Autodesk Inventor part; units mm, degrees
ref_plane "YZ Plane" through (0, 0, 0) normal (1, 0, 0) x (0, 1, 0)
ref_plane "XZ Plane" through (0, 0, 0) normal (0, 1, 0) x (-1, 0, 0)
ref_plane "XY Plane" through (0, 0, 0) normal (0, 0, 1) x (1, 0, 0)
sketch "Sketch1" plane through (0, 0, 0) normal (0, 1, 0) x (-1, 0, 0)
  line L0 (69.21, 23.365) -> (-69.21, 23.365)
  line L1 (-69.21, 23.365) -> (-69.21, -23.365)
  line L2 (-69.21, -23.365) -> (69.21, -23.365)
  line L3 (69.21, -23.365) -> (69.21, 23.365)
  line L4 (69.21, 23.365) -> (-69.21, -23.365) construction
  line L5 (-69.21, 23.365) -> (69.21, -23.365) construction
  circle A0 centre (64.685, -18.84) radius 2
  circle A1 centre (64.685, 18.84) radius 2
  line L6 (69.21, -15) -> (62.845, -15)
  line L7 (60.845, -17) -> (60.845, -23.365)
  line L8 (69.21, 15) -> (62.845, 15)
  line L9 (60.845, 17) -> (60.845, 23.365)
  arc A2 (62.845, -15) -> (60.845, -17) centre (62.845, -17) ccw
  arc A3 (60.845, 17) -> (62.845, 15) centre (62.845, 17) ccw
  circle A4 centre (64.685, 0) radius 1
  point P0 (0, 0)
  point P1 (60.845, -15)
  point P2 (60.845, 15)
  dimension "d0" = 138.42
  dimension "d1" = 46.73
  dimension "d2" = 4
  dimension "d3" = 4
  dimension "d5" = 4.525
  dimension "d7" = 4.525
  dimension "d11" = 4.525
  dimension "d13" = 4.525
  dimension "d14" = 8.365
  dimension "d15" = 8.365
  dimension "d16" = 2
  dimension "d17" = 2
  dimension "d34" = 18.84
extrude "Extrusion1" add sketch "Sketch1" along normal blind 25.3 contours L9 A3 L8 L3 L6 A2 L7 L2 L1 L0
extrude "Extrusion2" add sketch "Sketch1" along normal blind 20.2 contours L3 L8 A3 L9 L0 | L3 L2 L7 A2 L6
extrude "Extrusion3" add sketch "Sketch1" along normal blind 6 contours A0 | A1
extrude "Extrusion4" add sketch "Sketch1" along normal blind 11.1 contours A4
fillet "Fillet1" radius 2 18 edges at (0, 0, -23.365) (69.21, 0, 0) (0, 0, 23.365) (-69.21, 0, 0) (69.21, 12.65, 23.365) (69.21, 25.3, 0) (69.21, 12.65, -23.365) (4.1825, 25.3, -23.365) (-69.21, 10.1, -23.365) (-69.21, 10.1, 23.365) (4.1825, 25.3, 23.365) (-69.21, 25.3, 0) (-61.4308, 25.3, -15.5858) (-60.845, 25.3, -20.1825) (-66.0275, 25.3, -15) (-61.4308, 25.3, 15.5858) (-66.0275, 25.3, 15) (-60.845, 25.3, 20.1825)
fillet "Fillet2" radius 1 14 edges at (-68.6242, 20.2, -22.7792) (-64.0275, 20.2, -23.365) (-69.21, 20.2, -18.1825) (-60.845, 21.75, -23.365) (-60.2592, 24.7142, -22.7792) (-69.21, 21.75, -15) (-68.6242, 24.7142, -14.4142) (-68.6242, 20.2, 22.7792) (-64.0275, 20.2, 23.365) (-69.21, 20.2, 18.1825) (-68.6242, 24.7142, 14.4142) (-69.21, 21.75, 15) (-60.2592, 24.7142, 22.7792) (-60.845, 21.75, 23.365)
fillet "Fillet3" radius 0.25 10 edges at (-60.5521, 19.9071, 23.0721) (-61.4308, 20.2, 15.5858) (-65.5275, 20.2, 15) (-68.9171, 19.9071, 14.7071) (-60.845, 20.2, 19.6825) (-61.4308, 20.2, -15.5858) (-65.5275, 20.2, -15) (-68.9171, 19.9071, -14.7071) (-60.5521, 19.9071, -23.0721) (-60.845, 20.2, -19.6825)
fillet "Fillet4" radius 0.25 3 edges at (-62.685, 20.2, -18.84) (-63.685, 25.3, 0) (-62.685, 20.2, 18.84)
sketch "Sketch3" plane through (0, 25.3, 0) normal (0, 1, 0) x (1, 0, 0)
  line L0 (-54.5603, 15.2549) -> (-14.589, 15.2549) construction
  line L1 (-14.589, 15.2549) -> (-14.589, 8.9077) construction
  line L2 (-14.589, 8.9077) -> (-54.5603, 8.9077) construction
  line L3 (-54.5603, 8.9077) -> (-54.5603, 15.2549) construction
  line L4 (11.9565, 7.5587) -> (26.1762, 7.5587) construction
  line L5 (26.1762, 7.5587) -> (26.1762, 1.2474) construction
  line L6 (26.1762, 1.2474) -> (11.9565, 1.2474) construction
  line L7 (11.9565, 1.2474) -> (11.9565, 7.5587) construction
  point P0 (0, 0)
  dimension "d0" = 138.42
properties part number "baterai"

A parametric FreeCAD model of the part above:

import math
import FreeCAD as App
import Part
import Sketcher

V = App.Vector
Q = App.Units.Quantity


def edges_at(feature, points):
    """Names of the edges that pass closest to the given points."""
    edges = feature.Shape.Edges
    near = lambda p: min(range(len(edges)), key=lambda i: edges[i].distToShape(Part.Vertex(*p))[0])
    return sorted({f"Edge{near(p) + 1}" for p in points})

doc = App.newDocument("Part")
params = doc.addObject("Spreadsheet::Sheet", "Params")
for row, (alias, value) in enumerate([
    ("sketch1_diameter", "2 mm"),
    ("sketch1_radius", "2 mm"),
    ("sketch1_height", "46.73 mm"),
    ("sketch1_height2", "30 mm"),
    ("pad1_length", "25.3 mm"),
    ("sketch2_diameter", "4 mm"),
    ("pad2_length", "20.2 mm"),
    ("sketch3_diameter", "4 mm"),
    ("pad3_length", "6 mm"),
    ("sketch4_diameter", "2 mm"),
    ("pad4_length", "11.1 mm"),
    ("fillet_radius", "2 mm"),
    ("fillet2_radius", "1 mm"),
    ("fillet3_radius", "0.25 mm"),
    ("fillet4_radius", "0.25 mm"),
], start=1):
    params.set(f"A{row}", alias)
    params.set(f"B{row}", "=" + value)
    params.setAlias(f"B{row}", alias)

body = doc.addObject("PartDesign::Body", "Body")

# Sketch on XZ plane
sketch1 = body.newObject("Sketcher::SketchObject", "Sketch")
sketch1.AttachmentSupport = (doc.getObject("XZ_Plane"), [""])
sketch1.MapMode = "FlatFace"
sketch1.addGeometry([
    Part.LineSegment(V(-60.8, 17, 0), V(-60.8, 23.4, 0)),  # 0
    Part.LineSegment(V(-60.8, 23.4, 0), V(69.2, 23.4, 0)),  # 1
    Part.LineSegment(V(69.2, 23.4, 0), V(69.2, -23.4, 0)),  # 2
    Part.LineSegment(V(69.2, -23.4, 0), V(-60.8, -23.4, 0)),  # 3
    Part.LineSegment(V(-60.8, -23.4, 0), V(-60.8, -17, 0)),  # 4
    Part.ArcOfCircle(Part.Circle(V(-62.8, -17, 0), V(0, 0, 1), 2), math.radians(0), math.radians(90)),  # 5
    Part.LineSegment(V(-62.8, -15, 0), V(-69.2, -15, 0)),  # 6
    Part.LineSegment(V(-69.2, -15, 0), V(-69.2, 15, 0)),  # 7
    Part.LineSegment(V(-69.2, 15, 0), V(-62.8, 15, 0)),  # 8
    Part.ArcOfCircle(Part.Circle(V(-62.8, 17, 0), V(0, 0, 1), 2), math.radians(-90), math.radians(0)),  # 9
    Part.Circle(V(-64.7, 0, 0), V(0, 0, 1), 1),  # 10
], False)
sketch1.addConstraint([
    Sketcher.Constraint("Coincident", 0, 2, 1, 1),
    Sketcher.Constraint("Coincident", 1, 2, 2, 1),
    Sketcher.Constraint("Coincident", 2, 2, 3, 1),
    Sketcher.Constraint("Coincident", 3, 2, 4, 1),
    Sketcher.Constraint("Tangent", 4, 2, 5, 1),
    Sketcher.Constraint("Tangent", 5, 2, 6, 1),
    Sketcher.Constraint("Coincident", 6, 2, 7, 1),
    Sketcher.Constraint("Coincident", 7, 2, 8, 1),
    Sketcher.Constraint("Tangent", 8, 2, 9, 1),
    Sketcher.Constraint("Tangent", 9, 2, 0, 1),
    Sketcher.Constraint("Vertical", 0),
    Sketcher.Constraint("Horizontal", 1),
    Sketcher.Constraint("Vertical", 2),
    Sketcher.Constraint("Horizontal", 3),
    Sketcher.Constraint("Vertical", 4),
    Sketcher.Constraint("Horizontal", 6),
    Sketcher.Constraint("Vertical", 7),
    Sketcher.Constraint("Horizontal", 8),
    Sketcher.Constraint("Equal", 5, 9),
    Sketcher.Constraint("Symmetric", 5, 3, 9, 3, -1),
    Sketcher.Constraint("PointOnObject", 10, 3, -1),
    Sketcher.Constraint("Equal", 8, 0),
    Sketcher.Constraint("Equal", 0, 4),
    Sketcher.Constraint("Diameter", 10, Q("2 mm")),
    Sketcher.Constraint("Radius", 5, Q("2 mm")),
    Sketcher.Constraint("DistanceY", 2, 2, 2, 1, Q("46.73 mm")),
    Sketcher.Constraint("DistanceY", 7, 1, 7, 2, Q("30 mm")),
    Sketcher.Constraint("DistanceX", 6, 2, 10, 3, Q("4.525 mm")),
    Sketcher.Constraint("DistanceX", 1, 1, 1, 2, Q("130.055 mm")),
    Sketcher.Constraint("DistanceX", -1, 1, 1, 2, Q("69.21 mm")),
])
sketch1.setExpression("Constraints[23]", "Params.sketch1_diameter")
sketch1.setExpression("Constraints[24]", "Params.sketch1_radius")
sketch1.setExpression("Constraints[25]", "Params.sketch1_height")
sketch1.setExpression("Constraints[26]", "Params.sketch1_height2")
pad1 = body.newObject("PartDesign::Pad", "Pad")
pad1.Profile = sketch1
pad1.setExpression("Length", "Params.pad1_length")
pad1.Reversed = True

# Sketch on XZ plane
sketch2 = body.newObject("Sketcher::SketchObject", "Sketch001")
sketch2.AttachmentSupport = (doc.getObject("XZ_Plane"), [""])
sketch2.MapMode = "FlatFace"
sketch2.addGeometry([
    Part.LineSegment(V(-69.2, 15, 0), V(-69.2, 23.4, 0)),  # 0
    Part.LineSegment(V(-69.2, 23.4, 0), V(-60.8, 23.4, 0)),  # 1
    Part.LineSegment(V(-60.8, 23.4, 0), V(-60.8, 17, 0)),  # 2
    Part.ArcOfCircle(Part.Circle(V(-62.8, 17, 0), V(0, 0, 1), 2), math.radians(-90), math.radians(0)),  # 3
    Part.LineSegment(V(-62.8, 15, 0), V(-69.2, 15, 0)),  # 4
    Part.Circle(V(-64.7, 18.8, 0), V(0, 0, 1), 2),  # 5
    Part.LineSegment(V(-69.2, -23.4, 0), V(-69.2, -15, 0)),  # 6
    Part.LineSegment(V(-69.2, -15, 0), V(-62.8, -15, 0)),  # 7
    Part.ArcOfCircle(Part.Circle(V(-62.8, -17, 0), V(0, 0, 1), 2), math.radians(0), math.radians(90)),  # 8
    Part.LineSegment(V(-60.8, -17, 0), V(-60.8, -23.4, 0)),  # 9
    Part.LineSegment(V(-60.8, -23.4, 0), V(-69.2, -23.4, 0)),  # 10
    Part.Circle(V(-64.7, -18.8, 0), V(0, 0, 1), 2),  # 11
], False)
sketch2.addConstraint([
    Sketcher.Constraint("Coincident", 0, 2, 1, 1),
    Sketcher.Constraint("Coincident", 1, 2, 2, 1),
    Sketcher.Constraint("Tangent", 2, 2, 3, 2),
    Sketcher.Constraint("Tangent", 3, 1, 4, 1),
    Sketcher.Constraint("Coincident", 4, 2, 0, 1),
    Sketcher.Constraint("Coincident", 6, 2, 7, 1),
    Sketcher.Constraint("Tangent", 7, 2, 8, 2),
    Sketcher.Constraint("Tangent", 8, 1, 9, 1),
    Sketcher.Constraint("Coincident", 9, 2, 10, 1),
    Sketcher.Constraint("Coincident", 10, 2, 6, 1),
    Sketcher.Constraint("Vertical", 0),
    Sketcher.Constraint("Horizontal", 1),
    Sketcher.Constraint("Vertical", 2),
    Sketcher.Constraint("Horizontal", 4),
    Sketcher.Constraint("Vertical", 6),
    Sketcher.Constraint("Horizontal", 7),
    Sketcher.Constraint("Vertical", 9),
    Sketcher.Constraint("Horizontal", 10),
    Sketcher.Constraint("Equal", 3, 5),
    Sketcher.Constraint("Equal", 5, 8),
    Sketcher.Constraint("Equal", 8, 11),
    Sketcher.Constraint("Symmetric", 3, 3, 8, 3, -1),
    Sketcher.Constraint("Symmetric", 5, 3, 11, 3, -1),
    Sketcher.Constraint("Symmetric", 0, 2, 10, 2, -1),
    Sketcher.Constraint("Equal", 10, 0),
    Sketcher.Constraint("Diameter", 5, Q("4 mm")),
    Sketcher.Constraint("DistanceX", 1, 1, 1, 2, Q("8.365 mm")),
    Sketcher.Constraint("DistanceY", -1, 1, 5, 3, Q("18.84 mm")),
    Sketcher.Constraint("DistanceY", -1, 1, 3, 3, Q("17 mm")),
    Sketcher.Constraint("DistanceX", 0, 2, 5, 3, Q("4.525 mm")),
    Sketcher.Constraint("DistanceX", 0, 2, -1, 1, Q("69.21 mm")),
])
sketch2.setExpression("Constraints[25]", "Params.sketch2_diameter")
pad2 = body.newObject("PartDesign::Pad", "Pad001")
pad2.Profile = sketch2
pad2.setExpression("Length", "Params.pad2_length")
pad2.Reversed = True

# Sketch on XZ plane
sketch3 = body.newObject("Sketcher::SketchObject", "Sketch002")
sketch3.AttachmentSupport = (doc.getObject("XZ_Plane"), [""])
sketch3.MapMode = "FlatFace"
sketch3.addGeometry([
    Part.Circle(V(-64.7, -18.8, 0), V(0, 0, 1), 2),
    Part.Circle(V(-64.7, 18.8, 0), V(0, 0, 1), 2),
], False)
sketch3.addConstraint([
    Sketcher.Constraint("Equal", 0, 1),
    Sketcher.Constraint("Symmetric", 0, 3, 1, 3, -1),
    Sketcher.Constraint("Diameter", 0, Q("4 mm")),
    Sketcher.Constraint("DistanceY", 0, 3, -1, 1, Q("18.84 mm")),
    Sketcher.Constraint("DistanceX", 0, 3, -1, 1, Q("64.685 mm")),
])
sketch3.setExpression("Constraints[2]", "Params.sketch3_diameter")
pad3 = body.newObject("PartDesign::Pad", "Pad002")
pad3.Profile = sketch3
pad3.setExpression("Length", "Params.pad3_length")
pad3.Reversed = True

# Sketch on XZ plane
sketch4 = body.newObject("Sketcher::SketchObject", "Sketch003")
sketch4.AttachmentSupport = (doc.getObject("XZ_Plane"), [""])
sketch4.MapMode = "FlatFace"
sketch4.addGeometry(Part.Circle(V(-64.7, 0, 0), V(0, 0, 1), 1), False)
sketch4.addConstraint([
    Sketcher.Constraint("PointOnObject", 0, 3, -1),
    Sketcher.Constraint("Diameter", 0, Q("2 mm")),
    Sketcher.Constraint("DistanceX", 0, 3, -1, 1, Q("64.685 mm")),
])
sketch4.setExpression("Constraints[1]", "Params.sketch4_diameter")
pad4 = body.newObject("PartDesign::Pad", "Pad003")
pad4.Profile = sketch4
pad4.setExpression("Length", "Params.pad4_length")
pad4.Reversed = True
doc.recompute()

fillet = body.newObject("PartDesign::Fillet", "Fillet")
fillet.Base = (pad4, edges_at(pad4, [
    (0, 0, -23.365),
    (69.21, 0, 0),
    (0, 0, 23.365),
    (-69.21, 0, 0),
    (69.21, 12.65, 23.365),
    (69.21, 25.3, 0),
    (69.21, 12.65, -23.365),
    (4.183, 25.3, -23.365),
    (-69.21, 10.1, -23.365),
    (-69.21, 10.1, 23.365),
    (4.183, 25.3, 23.365),
    (-69.21, 25.3, 0),
    (-61.431, 25.3, -15.586),
    (-60.845, 25.3, -20.183),
    (-66.028, 25.3, -15),
    (-61.431, 25.3, 15.586),
    (-66.028, 25.3, 15),
    (-60.845, 25.3, 20.183),
]))
fillet.setExpression("Radius", "Params.fillet_radius")
doc.recompute()

fillet2 = body.newObject("PartDesign::Fillet", "Fillet001")
fillet2.Base = (fillet, edges_at(fillet, [
    (-68.624, 20.2, -22.779),
    (-64.028, 20.2, -23.365),
    (-69.21, 20.2, -18.183),
    (-60.845, 21.75, -23.365),
    (-60.259, 24.714, -22.779),
    (-69.21, 21.75, -15),
    (-68.624, 24.714, -14.414),
    (-68.624, 20.2, 22.779),
    (-64.028, 20.2, 23.365),
    (-69.21, 20.2, 18.183),
    (-68.624, 24.714, 14.414),
    (-69.21, 21.75, 15),
    (-60.259, 24.714, 22.779),
    (-60.845, 21.75, 23.365),
]))
fillet2.setExpression("Radius", "Params.fillet2_radius")
doc.recompute()

fillet3 = body.newObject("PartDesign::Fillet", "Fillet002")
fillet3.Base = (fillet2, edges_at(fillet2, [
    (-60.552, 19.907, 23.072),
    (-61.431, 20.2, 15.586),
    (-65.528, 20.2, 15),
    (-68.917, 19.907, 14.707),
    (-60.845, 20.2, 19.683),
    (-61.431, 20.2, -15.586),
    (-65.528, 20.2, -15),
    (-68.917, 19.907, -14.707),
    (-60.552, 19.907, -23.072),
    (-60.845, 20.2, -19.683),
]))
fillet3.setExpression("Radius", "Params.fillet3_radius")
doc.recompute()

fillet4 = body.newObject("PartDesign::Fillet", "Fillet003")
fillet4.Base = (fillet3, edges_at(fillet3, [(-62.685, 20.2, -18.84), (-63.685, 25.3, 0), (-62.685, 20.2, 18.84)]))
fillet4.setExpression("Radius", "Params.fillet4_radius")

doc.recompute()
